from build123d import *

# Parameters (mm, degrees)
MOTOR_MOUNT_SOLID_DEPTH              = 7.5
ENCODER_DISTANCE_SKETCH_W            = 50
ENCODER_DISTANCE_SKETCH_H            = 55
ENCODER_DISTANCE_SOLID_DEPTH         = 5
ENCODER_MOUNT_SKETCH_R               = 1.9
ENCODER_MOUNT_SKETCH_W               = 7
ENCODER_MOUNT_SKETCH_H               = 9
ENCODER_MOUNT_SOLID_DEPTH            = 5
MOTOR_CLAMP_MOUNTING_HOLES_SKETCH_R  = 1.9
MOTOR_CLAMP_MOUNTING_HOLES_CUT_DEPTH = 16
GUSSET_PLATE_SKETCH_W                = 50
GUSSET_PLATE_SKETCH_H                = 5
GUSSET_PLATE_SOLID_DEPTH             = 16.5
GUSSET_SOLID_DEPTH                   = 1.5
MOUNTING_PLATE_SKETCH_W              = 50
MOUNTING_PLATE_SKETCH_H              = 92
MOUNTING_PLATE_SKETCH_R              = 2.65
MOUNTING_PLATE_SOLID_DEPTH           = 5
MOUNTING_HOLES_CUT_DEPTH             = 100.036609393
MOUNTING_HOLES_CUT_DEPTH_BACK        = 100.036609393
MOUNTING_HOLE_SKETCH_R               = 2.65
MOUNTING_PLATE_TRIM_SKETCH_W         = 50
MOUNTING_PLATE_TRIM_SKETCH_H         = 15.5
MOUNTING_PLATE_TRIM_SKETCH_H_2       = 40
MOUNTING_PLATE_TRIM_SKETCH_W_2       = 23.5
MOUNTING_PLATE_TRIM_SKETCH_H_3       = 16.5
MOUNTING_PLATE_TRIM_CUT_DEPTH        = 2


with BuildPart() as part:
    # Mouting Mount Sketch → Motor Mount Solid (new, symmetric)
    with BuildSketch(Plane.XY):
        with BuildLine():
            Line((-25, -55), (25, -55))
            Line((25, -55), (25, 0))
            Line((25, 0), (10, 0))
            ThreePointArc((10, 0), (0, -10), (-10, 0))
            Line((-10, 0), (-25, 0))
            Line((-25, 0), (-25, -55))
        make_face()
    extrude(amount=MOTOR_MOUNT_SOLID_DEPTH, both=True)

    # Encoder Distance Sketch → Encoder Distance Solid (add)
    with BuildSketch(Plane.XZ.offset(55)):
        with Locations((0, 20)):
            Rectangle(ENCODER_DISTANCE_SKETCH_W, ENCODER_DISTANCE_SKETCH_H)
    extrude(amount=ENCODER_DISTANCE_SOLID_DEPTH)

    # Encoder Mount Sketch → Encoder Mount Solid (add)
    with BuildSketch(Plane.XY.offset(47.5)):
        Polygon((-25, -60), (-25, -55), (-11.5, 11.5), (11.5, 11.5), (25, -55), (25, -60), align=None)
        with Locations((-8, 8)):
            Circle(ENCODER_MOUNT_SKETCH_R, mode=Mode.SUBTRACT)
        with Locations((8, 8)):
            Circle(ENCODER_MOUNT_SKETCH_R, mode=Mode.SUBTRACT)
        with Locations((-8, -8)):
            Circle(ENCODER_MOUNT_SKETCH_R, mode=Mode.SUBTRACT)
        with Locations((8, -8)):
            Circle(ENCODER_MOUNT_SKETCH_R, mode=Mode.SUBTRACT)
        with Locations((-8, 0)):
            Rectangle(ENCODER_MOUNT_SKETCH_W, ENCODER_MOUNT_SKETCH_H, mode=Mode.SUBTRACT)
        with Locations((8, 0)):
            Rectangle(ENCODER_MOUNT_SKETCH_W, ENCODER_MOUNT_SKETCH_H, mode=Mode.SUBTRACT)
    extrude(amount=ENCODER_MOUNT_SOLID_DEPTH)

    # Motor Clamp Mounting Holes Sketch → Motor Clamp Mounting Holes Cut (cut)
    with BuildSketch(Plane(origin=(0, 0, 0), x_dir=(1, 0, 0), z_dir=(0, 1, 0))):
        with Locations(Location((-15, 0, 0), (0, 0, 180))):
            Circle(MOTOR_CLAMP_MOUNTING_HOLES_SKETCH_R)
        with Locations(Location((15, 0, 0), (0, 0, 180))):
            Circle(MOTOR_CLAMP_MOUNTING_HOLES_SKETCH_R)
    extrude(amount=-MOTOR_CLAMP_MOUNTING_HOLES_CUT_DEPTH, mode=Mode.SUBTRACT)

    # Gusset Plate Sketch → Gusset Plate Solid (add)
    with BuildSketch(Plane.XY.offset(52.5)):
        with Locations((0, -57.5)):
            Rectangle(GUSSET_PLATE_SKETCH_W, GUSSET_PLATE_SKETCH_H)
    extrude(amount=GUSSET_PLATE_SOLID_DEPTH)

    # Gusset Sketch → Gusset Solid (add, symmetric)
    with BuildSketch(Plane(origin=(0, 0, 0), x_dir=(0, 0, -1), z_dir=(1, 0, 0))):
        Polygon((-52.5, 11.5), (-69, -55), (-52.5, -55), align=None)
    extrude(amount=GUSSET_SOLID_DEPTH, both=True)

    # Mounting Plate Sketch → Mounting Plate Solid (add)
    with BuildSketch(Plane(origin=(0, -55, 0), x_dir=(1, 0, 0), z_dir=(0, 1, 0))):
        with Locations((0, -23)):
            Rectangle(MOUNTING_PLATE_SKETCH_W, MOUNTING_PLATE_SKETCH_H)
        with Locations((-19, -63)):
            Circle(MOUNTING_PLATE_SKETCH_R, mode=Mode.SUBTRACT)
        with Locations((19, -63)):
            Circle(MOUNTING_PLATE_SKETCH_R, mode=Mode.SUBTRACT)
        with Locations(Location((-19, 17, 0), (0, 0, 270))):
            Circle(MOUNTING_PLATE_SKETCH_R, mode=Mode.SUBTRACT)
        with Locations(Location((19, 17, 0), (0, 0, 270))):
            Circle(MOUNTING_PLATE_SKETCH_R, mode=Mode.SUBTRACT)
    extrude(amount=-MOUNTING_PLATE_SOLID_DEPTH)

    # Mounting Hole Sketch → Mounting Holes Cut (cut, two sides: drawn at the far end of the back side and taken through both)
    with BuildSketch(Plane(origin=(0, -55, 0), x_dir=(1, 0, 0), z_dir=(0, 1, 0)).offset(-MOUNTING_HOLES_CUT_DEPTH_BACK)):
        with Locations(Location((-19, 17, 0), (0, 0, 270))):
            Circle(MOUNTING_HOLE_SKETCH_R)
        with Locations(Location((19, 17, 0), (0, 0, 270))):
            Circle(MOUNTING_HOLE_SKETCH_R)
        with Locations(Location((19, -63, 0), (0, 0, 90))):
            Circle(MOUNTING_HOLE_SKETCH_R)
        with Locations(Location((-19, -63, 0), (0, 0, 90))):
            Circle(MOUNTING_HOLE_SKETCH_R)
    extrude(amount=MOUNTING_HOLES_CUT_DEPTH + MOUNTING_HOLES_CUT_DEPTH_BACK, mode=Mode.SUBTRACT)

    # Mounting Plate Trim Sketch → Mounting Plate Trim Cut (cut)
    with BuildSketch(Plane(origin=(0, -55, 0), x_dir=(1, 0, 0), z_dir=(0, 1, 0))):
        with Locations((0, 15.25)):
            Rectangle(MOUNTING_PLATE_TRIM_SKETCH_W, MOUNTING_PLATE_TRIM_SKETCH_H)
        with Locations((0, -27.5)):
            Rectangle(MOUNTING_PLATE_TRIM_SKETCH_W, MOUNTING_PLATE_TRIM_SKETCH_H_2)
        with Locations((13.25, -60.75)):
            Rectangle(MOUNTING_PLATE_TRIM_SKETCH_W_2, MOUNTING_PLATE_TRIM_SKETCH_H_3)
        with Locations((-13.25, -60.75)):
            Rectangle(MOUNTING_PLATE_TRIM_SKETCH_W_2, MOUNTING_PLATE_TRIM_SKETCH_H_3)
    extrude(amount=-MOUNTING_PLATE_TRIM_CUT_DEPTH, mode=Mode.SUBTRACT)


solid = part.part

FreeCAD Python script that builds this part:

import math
import FreeCAD as App
import Part
import Sketcher
Q = App.Units.Quantity

doc = App.newDocument("Part")
body = doc.addObject("PartDesign::Body", "Body")

# Sketch on XY plane
sketch1 = body.newObject("Sketcher::SketchObject", "Sketch")
sketch1.AttachmentSupport = (doc.getObject("XY_Plane"), [""])
sketch1.MapMode = "FlatFace"
sketch1.addGeometry([
    Part.LineSegment(App.Vector(-25, -55, 0), App.Vector(25, -55, 0)),  # 0
    Part.LineSegment(App.Vector(25, -55, 0), App.Vector(25, 0, 0)),  # 1
    Part.LineSegment(App.Vector(25, 0, 0), App.Vector(10, 0, 0)),  # 2
    Part.ArcOfCircle(Part.Circle(App.Vector(0, 0, 0), App.Vector(0, 0, 1), 10), math.radians(180), math.radians(360)),  # 3
    Part.LineSegment(App.Vector(-10, 0, 0), App.Vector(-25, 0, 0)),  # 4
    Part.LineSegment(App.Vector(-25, 0, 0), App.Vector(-25, -55, 0)),  # 5
], False)
sketch1.addConstraint([
    Sketcher.Constraint("Coincident", 0, 2, 1, 1),
    Sketcher.Constraint("Coincident", 1, 2, 2, 1),
    Sketcher.Constraint("Coincident", 2, 2, 3, 2),
    Sketcher.Constraint("Coincident", 3, 1, 4, 1),
    Sketcher.Constraint("Coincident", 4, 2, 5, 1),
    Sketcher.Constraint("Coincident", 5, 2, 0, 1),
    Sketcher.Constraint("Horizontal", 0),
    Sketcher.Constraint("Vertical", 1),
    Sketcher.Constraint("Horizontal", 2),
    Sketcher.Constraint("Horizontal", 4),
    Sketcher.Constraint("Vertical", 5),
    Sketcher.Constraint("Coincident", 3, 3, -1, 1),
    Sketcher.Constraint("Symmetric", 1, 2, 4, 2, -1, 1),
    Sketcher.Constraint("PointOnObject", 1, 2, -1),
    Sketcher.Constraint("Radius", 3, Q("10 mm")),
    Sketcher.Constraint("DistanceX", 0, 1, 0, 2, Q("50 mm")),
    Sketcher.Constraint("DistanceY", 1, 1, 1, 2, Q("55 mm")),
])
pad1 = body.newObject("PartDesign::Pad", "Pad")
pad1.Profile = sketch1
pad1.Length = 15
pad1.Midplane = True

# Sketch on XZ plane
sketch2 = body.newObject("Sketcher::SketchObject", "Sketch001")
sketch2.AttachmentSupport = (doc.getObject("XZ_Plane"), [""])
sketch2.MapMode = "FlatFace"
sketch2.AttachmentOffset = App.Placement(App.Vector(0, 0, 55), App.Rotation())
sketch2.addGeometry([
    Part.LineSegment(App.Vector(-25, 47.5, 0), App.Vector(-25, -7.5, 0)),
    Part.LineSegment(App.Vector(-25, -7.5, 0), App.Vector(25, -7.5, 0)),
    Part.LineSegment(App.Vector(25, -7.5, 0), App.Vector(25, 47.5, 0)),
    Part.LineSegment(App.Vector(25, 47.5, 0), App.Vector(-25, 47.5, 0)),
], False)
sketch2.addConstraint([
    Sketcher.Constraint("Coincident", 0, 2, 1, 1),
    Sketcher.Constraint("Coincident", 1, 2, 2, 1),
    Sketcher.Constraint("Coincident", 2, 2, 3, 1),
    Sketcher.Constraint("Coincident", 3, 2, 0, 1),
    Sketcher.Constraint("Vertical", 0),
    Sketcher.Constraint("Horizontal", 1),
    Sketcher.Constraint("Vertical", 2),
    Sketcher.Constraint("Horizontal", 3),
    Sketcher.Constraint("DistanceX", 1, 1, 1, 2, Q("50 mm")),
    Sketcher.Constraint("DistanceY", 0, 2, 0, 1, Q("55 mm")),
    Sketcher.Constraint("DistanceX", 0, 2, -1, 1, Q("25 mm")),
    Sketcher.Constraint("DistanceY", 0, 2, -1, 1, Q("7.5 mm")),
])
pad2 = body.newObject("PartDesign::Pad", "Pad001")
pad2.Profile = sketch2
pad2.Length = 5

# Sketch on XY plane
sketch3 = body.newObject("Sketcher::SketchObject", "Sketch002")
sketch3.AttachmentSupport = (doc.getObject("XY_Plane"), [""])
sketch3.MapMode = "FlatFace"
sketch3.AttachmentOffset = App.Placement(App.Vector(0, 0, 47.5), App.Rotation())
sketch3.addGeometry([
    Part.LineSegment(App.Vector(-25, -55, 0), App.Vector(-25, -60, 0)),  # 0
    Part.LineSegment(App.Vector(-25, -60, 0), App.Vector(25, -60, 0)),  # 1
    Part.LineSegment(App.Vector(25, -60, 0), App.Vector(25, -55, 0)),  # 2
    Part.LineSegment(App.Vector(25, -55, 0), App.Vector(11.5, 11.5, 0)),  # 3
    Part.LineSegment(App.Vector(11.5, 11.5, 0), App.Vector(-11.5, 11.5, 0)),  # 4
    Part.LineSegment(App.Vector(-11.5, 11.5, 0), App.Vector(-25, -55, 0)),  # 5
    Part.Circle(App.Vector(8, -8, 0), App.Vector(0, 0, 1), 1.9),  # 6
    Part.Circle(App.Vector(-8, -8, 0), App.Vector(0, 0, 1), 1.9),  # 7
    Part.LineSegment(App.Vector(4.5, -4.5, 0), App.Vector(4.5, 4.5, 0)),  # 8
    Part.LineSegment(App.Vector(4.5, 4.5, 0), App.Vector(11.5, 4.5, 0)),  # 9
    Part.LineSegment(App.Vector(11.5, 4.5, 0), App.Vector(11.5, -4.5, 0)),  # 10
    Part.LineSegment(App.Vector(11.5, -4.5, 0), App.Vector(4.5, -4.5, 0)),  # 11
    Part.Circle(App.Vector(8, 8, 0), App.Vector(0, 0, 1), 1.9),  # 12
    Part.LineSegment(App.Vector(-11.5, -4.5, 0), App.Vector(-11.5, 4.5, 0)),  # 13
    Part.LineSegment(App.Vector(-11.5, 4.5, 0), App.Vector(-4.5, 4.5, 0)),  # 14
    Part.LineSegment(App.Vector(-4.5, 4.5, 0), App.Vector(-4.5, -4.5, 0)),  # 15
    Part.LineSegment(App.Vector(-4.5, -4.5, 0), App.Vector(-11.5, -4.5, 0)),  # 16
    Part.Circle(App.Vector(-8, 8, 0), App.Vector(0, 0, 1), 1.9),  # 17
], False)
sketch3.addConstraint([
    Sketcher.Constraint("Coincident", 0, 2, 1, 1),
    Sketcher.Constraint("Coincident", 1, 2, 2, 1),
    Sketcher.Constraint("Coincident", 2, 2, 3, 1),
    Sketcher.Constraint("Coincident", 3, 2, 4, 1),
    Sketcher.Constraint("Coincident", 4, 2, 5, 1),
    Sketcher.Constraint("Coincident", 5, 2, 0, 1),
    Sketcher.Constraint("Coincident", 8, 2, 9, 1),
    Sketcher.Constraint("Coincident", 9, 2, 10, 1),
    Sketcher.Constraint("Coincident", 10, 2, 11, 1),
    Sketcher.Constraint("Coincident", 11, 2, 8, 1),
    Sketcher.Constraint("Coincident", 13, 2, 14, 1),
    Sketcher.Constraint("Coincident", 14, 2, 15, 1),
    Sketcher.Constraint("Coincident", 15, 2, 16, 1),
    Sketcher.Constraint("Coincident", 16, 2, 13, 1),
    Sketcher.Constraint("Vertical", 0),
    Sketcher.Constraint("Horizontal", 1),
    Sketcher.Constraint("Vertical", 2),
    Sketcher.Constraint("Horizontal", 4),
    Sketcher.Constraint("Vertical", 8),
    Sketcher.Constraint("Horizontal", 9),
    Sketcher.Constraint("Vertical", 10),
    Sketcher.Constraint("Horizontal", 11),
    Sketcher.Constraint("Vertical", 13),
    Sketcher.Constraint("Horizontal", 14),
    Sketcher.Constraint("Vertical", 15),
    Sketcher.Constraint("Horizontal", 16),
    Sketcher.Constraint("Equal", 6, 7),
    Sketcher.Constraint("Equal", 7, 12),
    Sketcher.Constraint("Equal", 12, 17),
    Sketcher.Constraint("Symmetric", 7, 3, 12, 3, -1, 1),
    Sketcher.Constraint("Symmetric", 6, 3, 17, 3, -1, 1),
    Sketcher.Constraint("Symmetric", 10, 2, 13, 2, -1, 1),
    Sketcher.Constraint("Symmetric", 8, 2, 15, 2, -1, 1),
    Sketcher.Constraint("Symmetric", 6, 3, 7, 3, -2),
    Sketcher.Constraint("Symmetric", 2, 2, 5, 2, -2),
    Sketcher.Constraint("Horizontal", 9, 2, 13, 2),
    Sketcher.Constraint("Vertical", 3, 2, 9, 2),
    Sketcher.Constraint("Vertical", 4, 2, 13, 2),
    Sketcher.Constraint("Diameter", 6, Q("3.8 mm")),
    Sketcher.Constraint("DistanceX", 1, 1, 1, 2, Q("50 mm")),
    Sketcher.Constraint("DistanceX", 4, 2, 4, 1, Q("23 mm")),
    Sketcher.Constraint("DistanceX", 9, 1, 9, 2, Q("7 mm")),
    Sketcher.Constraint("DistanceY", 0, 2, 0, 1, Q("5 mm")),
    Sketcher.Constraint("DistanceY", 8, 1, 8, 2, Q("9 mm")),
    Sketcher.Constraint("DistanceX", -1, 1, 6, 3, Q("8 mm")),
    Sketcher.Constraint("DistanceY", 6, 3, -1, 1, Q("8 mm")),
    Sketcher.Constraint("DistanceY", 0, 2, -1, 1, Q("60 mm")),
    Sketcher.Constraint("DistanceY", 8, 2, 3, 2, Q("7 mm")),
])
pad3 = body.newObject("PartDesign::Pad", "Pad002")
pad3.Profile = sketch3
pad3.Length = 5

# Sketch on XZ plane
sketch4 = body.newObject("Sketcher::SketchObject", "Sketch003")
sketch4.AttachmentSupport = (doc.getObject("XZ_Plane"), [""])
sketch4.MapMode = "FlatFace"
sketch4.addGeometry([
    Part.Circle(App.Vector(-15, 0, 0), App.Vector(0, 0, 1), 1.9),
    Part.Circle(App.Vector(15, 0, 0), App.Vector(0, 0, 1), 1.9),
], False)
sketch4.addConstraint([
    Sketcher.Constraint("Equal", 0, 1),
    Sketcher.Constraint("Symmetric", 0, 3, 1, 3, -1, 1),
    Sketcher.Constraint("PointOnObject", 0, 3, -1),
    Sketcher.Constraint("Diameter", 0, Q("3.8 mm")),
    Sketcher.Constraint("DistanceX", 0, 3, -1, 1, Q("15 mm")),
])
pocket1 = body.newObject("PartDesign::Pocket", "Pocket")
pocket1.Profile = sketch4
pocket1.Length = 16
pocket1.Reversed = True

# Sketch on XY plane
sketch5 = body.newObject("Sketcher::SketchObject", "Sketch004")
sketch5.AttachmentSupport = (doc.getObject("XY_Plane"), [""])
sketch5.MapMode = "FlatFace"
sketch5.AttachmentOffset = App.Placement(App.Vector(0, 0, 52.5), App.Rotation())
sketch5.addGeometry([
    Part.LineSegment(App.Vector(-25, -55, 0), App.Vector(-25, -60, 0)),
    Part.LineSegment(App.Vector(-25, -60, 0), App.Vector(25, -60, 0)),
    Part.LineSegment(App.Vector(25, -60, 0), App.Vector(25, -55, 0)),
    Part.LineSegment(App.Vector(25, -55, 0), App.Vector(-25, -55, 0)),
], False)
sketch5.addConstraint([
    Sketcher.Constraint("Coincident", 0, 2, 1, 1),
    Sketcher.Constraint("Coincident", 1, 2, 2, 1),
    Sketcher.Constraint("Coincident", 2, 2, 3, 1),
    Sketcher.Constraint("Coincident", 3, 2, 0, 1),
    Sketcher.Constraint("Vertical", 0),
    Sketcher.Constraint("Horizontal", 1),
    Sketcher.Constraint("Vertical", 2),
    Sketcher.Constraint("Horizontal", 3),
    Sketcher.Constraint("DistanceX", 1, 1, 1, 2, Q("50 mm")),
    Sketcher.Constraint("DistanceY", 0, 2, 0, 1, Q("5 mm")),
    Sketcher.Constraint("DistanceX", 0, 2, -1, 1, Q("25 mm")),
    Sketcher.Constraint("DistanceY", 0, 2, -1, 1, Q("60 mm")),
])
pad4 = body.newObject("PartDesign::Pad", "Pad003")
pad4.Profile = sketch5
pad4.Length = 16.5

# Sketch on YZ plane
sketch6 = body.newObject("Sketcher::SketchObject", "Sketch005")
sketch6.AttachmentSupport = (doc.getObject("YZ_Plane"), [""])
sketch6.MapMode = "FlatFace"
sketch6.addGeometry([
    Part.LineSegment(App.Vector(11.5, 52.5, 0), App.Vector(-55, 69, 0)),
    Part.LineSegment(App.Vector(-55, 69, 0), App.Vector(-55, 52.5, 0)),
    Part.LineSegment(App.Vector(-55, 52.5, 0), App.Vector(11.5, 52.5, 0)),
], False)
sketch6.addConstraint([
    Sketcher.Constraint("Coincident", 0, 2, 1, 1),
    Sketcher.Constraint("Coincident", 1, 2, 2, 1),
    Sketcher.Constraint("Coincident", 2, 2, 0, 1),
    Sketcher.Constraint("Vertical", 1),
    Sketcher.Constraint("Horizontal", 2),
    Sketcher.Constraint("DistanceX", 2, 1, 2, 2, Q("66.5 mm")),
    Sketcher.Constraint("DistanceY", 1, 2, 1, 1, Q("16.5 mm")),
    Sketcher.Constraint("DistanceX", 0, 2, -1, 1, Q("55 mm")),
    Sketcher.Constraint("DistanceY", -1, 1, 0, 2, Q("69 mm")),
])
pad5 = body.newObject("PartDesign::Pad", "Pad004")
pad5.Profile = sketch6
pad5.Length = 3
pad5.Midplane = True

# Sketch on XZ plane
sketch7 = body.newObject("Sketcher::SketchObject", "Sketch006")
sketch7.AttachmentSupport = (doc.getObject("XZ_Plane"), [""])
sketch7.MapMode = "FlatFace"
sketch7.AttachmentOffset = App.Placement(App.Vector(0, 0, 55), App.Rotation())
sketch7.addGeometry([
    Part.LineSegment(App.Vector(-25, -23, 0), App.Vector(-25, 69, 0)),  # 0
    Part.LineSegment(App.Vector(-25, 69, 0), App.Vector(25, 69, 0)),  # 1
    Part.LineSegment(App.Vector(25, 69, 0), App.Vector(25, -23, 0)),  # 2
    Part.LineSegment(App.Vector(25, -23, 0), App.Vector(-25, -23, 0)),  # 3
    Part.Circle(App.Vector(-19, 63, 0), App.Vector(0, 0, 1), 2.65),  # 4
    Part.Circle(App.Vector(19, 63, 0), App.Vector(0, 0, 1), 2.65),  # 5
    Part.Circle(App.Vector(-19, -17, 0), App.Vector(0, 0, 1), 2.65),  # 6
    Part.Circle(App.Vector(19, -17, 0), App.Vector(0, 0, 1), 2.65),  # 7
], False)
sketch7.addConstraint([
    Sketcher.Constraint("Coincident", 0, 2, 1, 1),
    Sketcher.Constraint("Coincident", 1, 2, 2, 1),
    Sketcher.Constraint("Coincident", 2, 2, 3, 1),
    Sketcher.Constraint("Coincident", 3, 2, 0, 1),
    Sketcher.Constraint("Vertical", 0),
    Sketcher.Constraint("Horizontal", 1),
    Sketcher.Constraint("Vertical", 2),
    Sketcher.Constraint("Horizontal", 3),
    Sketcher.Constraint("Equal", 4, 5),
    Sketcher.Constraint("Equal", 5, 6),
    Sketcher.Constraint("Equal", 6, 7),
    Sketcher.Constraint("Symmetric", 4, 3, 5, 3, -2),
    Sketcher.Constraint("Symmetric", 6, 3, 7, 3, -2),
    Sketcher.Constraint("Vertical", 4, 3, 6, 3),
    Sketcher.Constraint("Diameter", 4, Q("5.3 mm")),
    Sketcher.Constraint("DistanceX", 1, 1, 1, 2, Q("50 mm")),
    Sketcher.Constraint("DistanceY", 0, 1, 0, 2, Q("92 mm")),
    Sketcher.Constraint("DistanceX", 4, 3, -1, 1, Q("19 mm")),
    Sketcher.Constraint("DistanceY", -1, 1, 4, 3, Q("63 mm")),
    Sketcher.Constraint("DistanceY", 6, 3, -1, 1, Q("17 mm")),
    Sketcher.Constraint("DistanceX", 0, 2, -1, 1, Q("25 mm")),
    Sketcher.Constraint("DistanceY", -1, 1, 0, 2, Q("69 mm")),
])
pad6 = body.newObject("PartDesign::Pad", "Pad005")
pad6.Profile = sketch7
pad6.Length = 5

# Sketch on XZ plane
sketch8 = body.newObject("Sketcher::SketchObject", "Sketch007")
sketch8.AttachmentSupport = (doc.getObject("XZ_Plane"), [""])
sketch8.MapMode = "FlatFace"
sketch8.AttachmentOffset = App.Placement(App.Vector(0, 0, 55), App.Rotation())
sketch8.addGeometry([
    Part.Circle(App.Vector(-19, -17, 0), App.Vector(0, 0, 1), 2.65),
    Part.Circle(App.Vector(19, -17, 0), App.Vector(0, 0, 1), 2.65),
    Part.Circle(App.Vector(19, 63, 0), App.Vector(0, 0, 1), 2.65),
    Part.Circle(App.Vector(-19, 63, 0), App.Vector(0, 0, 1), 2.65),
], False)
sketch8.addConstraint([
    Sketcher.Constraint("Equal", 0, 1),
    Sketcher.Constraint("Equal", 1, 2),
    Sketcher.Constraint("Equal", 2, 3),
    Sketcher.Constraint("Symmetric", 0, 3, 1, 3, -2),
    Sketcher.Constraint("Symmetric", 2, 3, 3, 3, -2),
    Sketcher.Constraint("Vertical", 1, 3, 2, 3),
    Sketcher.Constraint("Diameter", 0, Q("5.3 mm")),
    Sketcher.Constraint("DistanceX", 0, 3, -1, 1, Q("19 mm")),
    Sketcher.Constraint("DistanceY", 0, 3, -1, 1, Q("17 mm")),
    Sketcher.Constraint("DistanceY", -1, 1, 2, 3, Q("63 mm")),
])
pocket2 = body.newObject("PartDesign::Pocket", "Pocket001")
pocket2.Profile = sketch8
pocket2.Type = "ThroughAll"
pocket2.Midplane = True

# Sketch on XZ plane
sketch9 = body.newObject("Sketcher::SketchObject", "Sketch008")
sketch9.AttachmentSupport = (doc.getObject("XZ_Plane"), [""])
sketch9.MapMode = "FlatFace"
sketch9.AttachmentOffset = App.Placement(App.Vector(0, 0, 55), App.Rotation())
sketch9.addGeometry([
    Part.LineSegment(App.Vector(-25, -23, 0), App.Vector(-25, -7.5, 0)),  # 0
    Part.LineSegment(App.Vector(-25, -7.5, 0), App.Vector(25, -7.5, 0)),  # 1
    Part.LineSegment(App.Vector(25, -7.5, 0), App.Vector(25, -23, 0)),  # 2
    Part.LineSegment(App.Vector(25, -23, 0), App.Vector(-25, -23, 0)),  # 3
    Part.LineSegment(App.Vector(-25, 7.5, 0), App.Vector(-25, 47.5, 0)),  # 4
    Part.LineSegment(App.Vector(-25, 47.5, 0), App.Vector(25, 47.5, 0)),  # 5
    Part.LineSegment(App.Vector(25, 47.5, 0), App.Vector(25, 7.5, 0)),  # 6
    Part.LineSegment(App.Vector(25, 7.5, 0), App.Vector(-25, 7.5, 0)),  # 7
    Part.LineSegment(App.Vector(1.5, 52.5, 0), App.Vector(1.5, 69, 0)),  # 8
    Part.LineSegment(App.Vector(1.5, 69, 0), App.Vector(25, 69, 0)),  # 9
    Part.LineSegment(App.Vector(25, 69, 0), App.Vector(25, 52.5, 0)),  # 10
    Part.LineSegment(App.Vector(25, 52.5, 0), App.Vector(1.5, 52.5, 0)),  # 11
    Part.LineSegment(App.Vector(-25, 52.5, 0), App.Vector(-25, 69, 0)),  # 12
    Part.LineSegment(App.Vector(-25, 69, 0), App.Vector(-1.5, 69, 0)),  # 13
    Part.LineSegment(App.Vector(-1.5, 69, 0), App.Vector(-1.5, 52.5, 0)),  # 14
    Part.LineSegment(App.Vector(-1.5, 52.5, 0), App.Vector(-25, 52.5, 0)),  # 15
], False)
sketch9.addConstraint([
    Sketcher.Constraint("Coincident", 0, 2, 1, 1),
    Sketcher.Constraint("Coincident", 1, 2, 2, 1),
    Sketcher.Constraint("Coincident", 2, 2, 3, 1),
    Sketcher.Constraint("Coincident", 3, 2, 0, 1),
    Sketcher.Constraint("Coincident", 4, 2, 5, 1),
    Sketcher.Constraint("Coincident", 5, 2, 6, 1),
    Sketcher.Constraint("Coincident", 6, 2, 7, 1),
    Sketcher.Constraint("Coincident", 7, 2, 4, 1),
    Sketcher.Constraint("Coincident", 8, 2, 9, 1),
    Sketcher.Constraint("Coincident", 9, 2, 10, 1),
    Sketcher.Constraint("Coincident", 10, 2, 11, 1),
    Sketcher.Constraint("Coincident", 11, 2, 8, 1),
    Sketcher.Constraint("Coincident", 12, 2, 13, 1),
    Sketcher.Constraint("Coincident", 13, 2, 14, 1),
    Sketcher.Constraint("Coincident", 14, 2, 15, 1),
    Sketcher.Constraint("Coincident", 15, 2, 12, 1),
    Sketcher.Constraint("Vertical", 0),
    Sketcher.Constraint("Horizontal", 1),
    Sketcher.Constraint("Vertical", 2),
    Sketcher.Constraint("Horizontal", 3),
    Sketcher.Constraint("Vertical", 4),
    Sketcher.Constraint("Horizontal", 5),
    Sketcher.Constraint("Vertical", 6),
    Sketcher.Constraint("Horizontal", 7),
    Sketcher.Constraint("Vertical", 8),
    Sketcher.Constraint("Horizontal", 9),
    Sketcher.Constraint("Vertical", 10),
    Sketcher.Constraint("Horizontal", 11),
    Sketcher.Constraint("Vertical", 12),
    Sketcher.Constraint("Horizontal", 13),
    Sketcher.Constraint("Vertical", 14),
    Sketcher.Constraint("Horizontal", 15),
    Sketcher.Constraint("Symmetric", 0, 2, 6, 2, -1, 1),
    Sketcher.Constraint("Symmetric", 9, 2, 12, 2, -2),
    Sketcher.Constraint("Symmetric", 11, 2, 14, 2, -2),
    Sketcher.Constraint("Vertical", 3, 2, 4, 2),
    Sketcher.Constraint("Vertical", 2, 2, 5, 2),
    Sketcher.Constraint("Vertical", 6, 2, 9, 2),
    Sketcher.Constraint("DistanceX", 1, 1, 1, 2, Q("50 mm")),
    Sketcher.Constraint("DistanceY", 4, 1, 4, 2, Q("40 mm")),
    Sketcher.Constraint("DistanceX", 9, 1, 9, 2, Q("23.5 mm")),
    Sketcher.Constraint("DistanceY", 0, 1, 0, 2, Q("15.5 mm")),
    Sketcher.Constraint("DistanceY", 8, 1, 8, 2, Q("16.5 mm")),
    Sketcher.Constraint("DistanceY", 2, 2, -1, 1, Q("23 mm")),
    Sketcher.Constraint("DistanceY", -1, 1, 8, 2, Q("69 mm")),
])
pocket3 = body.newObject("PartDesign::Pocket", "Pocket002")
pocket3.Profile = sketch9
pocket3.Length = 2
pocket3.Reversed = True

doc.recompute()
